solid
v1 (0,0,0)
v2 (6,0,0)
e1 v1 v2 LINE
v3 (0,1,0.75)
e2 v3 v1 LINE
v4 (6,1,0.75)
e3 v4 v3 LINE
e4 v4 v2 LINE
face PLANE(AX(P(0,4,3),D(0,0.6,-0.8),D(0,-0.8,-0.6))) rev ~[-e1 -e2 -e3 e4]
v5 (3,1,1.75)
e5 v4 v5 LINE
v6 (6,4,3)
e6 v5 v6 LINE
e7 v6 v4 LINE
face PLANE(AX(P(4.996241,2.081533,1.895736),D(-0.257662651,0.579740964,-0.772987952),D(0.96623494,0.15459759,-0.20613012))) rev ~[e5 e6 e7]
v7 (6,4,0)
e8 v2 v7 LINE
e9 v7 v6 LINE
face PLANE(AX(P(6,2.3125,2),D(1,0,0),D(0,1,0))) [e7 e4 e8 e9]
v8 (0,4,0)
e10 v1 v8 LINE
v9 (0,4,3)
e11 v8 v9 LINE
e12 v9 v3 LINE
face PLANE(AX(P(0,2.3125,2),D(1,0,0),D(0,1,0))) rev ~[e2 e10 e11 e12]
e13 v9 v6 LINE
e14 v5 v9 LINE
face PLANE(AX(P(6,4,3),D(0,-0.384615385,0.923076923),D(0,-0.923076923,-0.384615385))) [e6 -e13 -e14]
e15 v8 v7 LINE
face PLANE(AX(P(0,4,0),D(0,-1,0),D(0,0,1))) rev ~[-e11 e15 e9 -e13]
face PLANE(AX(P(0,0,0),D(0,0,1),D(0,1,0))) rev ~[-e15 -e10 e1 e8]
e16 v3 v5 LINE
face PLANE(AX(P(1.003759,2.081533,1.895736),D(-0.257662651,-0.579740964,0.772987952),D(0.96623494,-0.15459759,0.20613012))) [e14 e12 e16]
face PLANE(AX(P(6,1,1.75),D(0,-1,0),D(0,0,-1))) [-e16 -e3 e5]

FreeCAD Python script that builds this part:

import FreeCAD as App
import Part
import Sketcher

doc = App.newDocument("Part")
params = doc.addObject("Spreadsheet::Sheet", "Params")
for row, (alias, value) in enumerate([
    ("sketch1_width", "4 mm"),
    ("sketch1_height", "3 mm"),
    ("pad1_length", "6 mm"),
    ("sketch2_height", "1 mm"),
    ("sketch2_length", "3.75 mm"),
    ("pad2_length", "6 mm"),
    ("sketch3_height", "3.75 mm"),
    ("pocket1_length", "25 mm"),
    ("sketch4_height", "3.75 mm"),
    ("pocket2_length", "25 mm"),
], start=1):
    params.set(f"A{row}", alias)
    params.set(f"B{row}", "=" + value)
    params.setAlias(f"B{row}", alias)

body = doc.addObject("PartDesign::Body", "Body")

# Sketch on YZ plane
sketch1 = body.newObject("Sketcher::SketchObject", "Sketch")
sketch1.AttachmentSupport = (doc.getObject("YZ_Plane"), [""])
sketch1.MapMode = "FlatFace"
sketch1.addGeometry([
    Part.LineSegment(App.Vector(4, 3, 0), App.Vector(0, 0, 0)),
    Part.LineSegment(App.Vector(0, 0, 0), App.Vector(4, 0, 0)),
    Part.LineSegment(App.Vector(4, 0, 0), App.Vector(4, 3, 0)),
], False)
sketch1.addConstraint([
    Sketcher.Constraint("Coincident", 0, 2, 1, 1),
    Sketcher.Constraint("Coincident", 1, 2, 2, 1),
    Sketcher.Constraint("Coincident", 2, 2, 0, 1),
    Sketcher.Constraint("Horizontal", 1),
    Sketcher.Constraint("Vertical", 2),
    Sketcher.Constraint("Coincident", 0, 2, -1, 1),
    Sketcher.Constraint("DistanceX", 1, 1, 1, 2, 4.0),
    Sketcher.Constraint("DistanceY", 2, 1, 2, 2, 3.0),
])
sketch1.setExpression("Constraints[6]", "Params.sketch1_width")
sketch1.setExpression("Constraints[7]", "Params.sketch1_height")
pad1 = body.newObject("PartDesign::Pad", "Pad")
pad1.Profile = sketch1
pad1.setExpression("Length", "Params.pad1_length")

# Sketch on YZ plane
sketch2 = body.newObject("Sketcher::SketchObject", "Sketch001")
sketch2.AttachmentSupport = (doc.getObject("YZ_Plane"), [""])
sketch2.MapMode = "FlatFace"
sketch2.AttachmentOffset = App.Placement(App.Vector(0, 0, 6), App.Rotation())
sketch2.addGeometry([
    Part.LineSegment(App.Vector(1, 1.75, 0), App.Vector(1, 0.75, 0)),
    Part.LineSegment(App.Vector(1, 0.75, 0), App.Vector(4, 3, 0)),
    Part.LineSegment(App.Vector(4, 3, 0), App.Vector(1, 1.75, 0)),
], False)
sketch2.addConstraint([
    Sketcher.Constraint("Coincident", 0, 2, 1, 1),
    Sketcher.Constraint("Coincident", 1, 2, 2, 1),
    Sketcher.Constraint("Coincident", 2, 2, 0, 1),
    Sketcher.Constraint("Vertical", 0),
    Sketcher.Constraint("DistanceY", 0, 2, 0, 1, 1.0),
    Sketcher.Constraint("DistanceX", -1, 1, 0, 2, 1.0),
    Sketcher.Constraint("DistanceX", -1, 1, 1, 2, 4.0),
    Sketcher.Constraint("DistanceY", -1, 1, 1, 2, 3.0),
    Sketcher.Constraint("Distance", 1, 3.75),
])
sketch2.setExpression("Constraints[4]", "Params.sketch2_height")
sketch2.setExpression("Constraints[8]", "Params.sketch2_length")
pad2 = body.newObject("PartDesign::Pad", "Pad001")
pad2.Profile = sketch2
pad2.setExpression("Length", "Params.pad2_length")
pad2.Reversed = True

# Sketch on an angled plane
sketch3 = body.newObject("Sketcher::SketchObject", "Sketch002")
sketch3.Placement = App.Placement(App.Vector(0.39834, -0.896266, 1.195021), App.Rotation(App.Vector(0.96623494, 0.15459759, -0.20613012), App.Vector(0, -0.800000001, -0.6), App.Vector(-0.257662651, 0.579740964, -0.772987952), "ZXY"))
sketch3.addGeometry([
    Part.LineSegment(App.Vector(5.79741, -1.25, 0), App.Vector(2.692575, -1.85, 0)),
    Part.LineSegment(App.Vector(2.692575, -1.85, 0), App.Vector(5.79741, -5, 0)),
    Part.LineSegment(App.Vector(5.79741, -5, 0), App.Vector(5.79741, -1.25, 0)),
], False)
sketch3.addConstraint([
    Sketcher.Constraint("Coincident", 0, 2, 1, 1),
    Sketcher.Constraint("Coincident", 1, 2, 2, 1),
    Sketcher.Constraint("Coincident", 2, 2, 0, 1),
    Sketcher.Constraint("Vertical", 2),
    Sketcher.Constraint("DistanceY", 1, 2, -1, 1, 5.0),
    Sketcher.Constraint("DistanceY", 2, 1, 2, 2, 3.75),
    Sketcher.Constraint("DistanceY", 0, 2, 2, 2, 0.6),
    Sketcher.Constraint("Distance", 1, 4.422952),
    Sketcher.Constraint("DistanceX", -1, 1, 1, 2, 5.79741),
])
sketch3.setExpression("Constraints[5]", "Params.sketch3_height")
pocket1 = body.newObject("PartDesign::Pocket", "Pocket")
pocket1.Profile = sketch3
pocket1.setExpression("Length", "Params.pocket1_length")

# Sketch on an angled plane
sketch4 = body.newObject("Sketcher::SketchObject", "Sketch003")
sketch4.Placement = App.Placement(App.Vector(0, 0, 0), App.Rotation(App.Vector(0.96623494, -0.15459759, 0.20613012), App.Vector(0, 0.800000001, 0.6), App.Vector(-0.257662651, -0.579740964, 0.772987952), "ZXY"))
sketch4.addGeometry([
    Part.LineSegment(App.Vector(3.104835, 1.85, 0), App.Vector(0, 5, 0)),
    Part.LineSegment(App.Vector(0, 5, 0), App.Vector(0, 1.25, 0)),
    Part.LineSegment(App.Vector(0, 1.25, 0), App.Vector(3.104835, 1.85, 0)),
], False)
sketch4.addConstraint([
    Sketcher.Constraint("Coincident", 0, 2, 1, 1),
    Sketcher.Constraint("Coincident", 1, 2, 2, 1),
    Sketcher.Constraint("Coincident", 2, 2, 0, 1),
    Sketcher.Constraint("Vertical", 1),
    Sketcher.Constraint("PointOnObject", 0, 2, -2),
    Sketcher.Constraint("DistanceY", -1, 1, 0, 2, 5.0),
    Sketcher.Constraint("DistanceY", 1, 2, 1, 1, 3.75),
    Sketcher.Constraint("DistanceY", 1, 2, 2, 2, 0.6),
    Sketcher.Constraint("Distance", 0, 4.422952),
])
sketch4.setExpression("Constraints[6]", "Params.sketch4_height")
pocket2 = body.newObject("PartDesign::Pocket", "Pocket001")
pocket2.Profile = sketch4
pocket2.setExpression("Length", "Params.pocket2_length")
pocket2.Reversed = True

doc.recompute()
